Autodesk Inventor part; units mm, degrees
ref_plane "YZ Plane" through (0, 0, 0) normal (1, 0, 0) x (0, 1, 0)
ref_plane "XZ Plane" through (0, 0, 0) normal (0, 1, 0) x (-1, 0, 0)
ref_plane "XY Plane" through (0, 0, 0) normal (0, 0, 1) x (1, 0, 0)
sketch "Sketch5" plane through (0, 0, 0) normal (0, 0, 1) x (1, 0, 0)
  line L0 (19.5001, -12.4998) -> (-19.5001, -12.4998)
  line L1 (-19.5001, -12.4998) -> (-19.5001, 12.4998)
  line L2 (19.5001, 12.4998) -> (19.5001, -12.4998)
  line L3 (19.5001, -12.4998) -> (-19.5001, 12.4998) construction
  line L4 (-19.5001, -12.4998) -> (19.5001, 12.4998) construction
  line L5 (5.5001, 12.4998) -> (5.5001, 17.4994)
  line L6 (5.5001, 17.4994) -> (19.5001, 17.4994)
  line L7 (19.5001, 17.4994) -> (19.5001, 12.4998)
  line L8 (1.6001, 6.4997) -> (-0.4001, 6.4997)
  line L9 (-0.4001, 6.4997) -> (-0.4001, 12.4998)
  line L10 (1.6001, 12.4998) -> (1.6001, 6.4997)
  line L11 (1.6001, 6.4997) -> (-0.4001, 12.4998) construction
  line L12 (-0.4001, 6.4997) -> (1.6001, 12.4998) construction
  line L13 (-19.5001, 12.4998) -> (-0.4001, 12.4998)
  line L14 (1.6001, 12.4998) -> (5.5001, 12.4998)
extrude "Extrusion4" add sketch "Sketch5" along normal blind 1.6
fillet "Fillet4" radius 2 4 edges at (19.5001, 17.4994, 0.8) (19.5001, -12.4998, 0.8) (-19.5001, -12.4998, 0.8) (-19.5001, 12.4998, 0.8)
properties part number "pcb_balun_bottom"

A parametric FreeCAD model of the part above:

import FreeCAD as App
import Part
import Sketcher

V = App.Vector
Q = App.Units.Quantity


def edges_at(feature, points):
    """Names of the edges that pass closest to the given points."""
    edges = feature.Shape.Edges
    near = lambda p: min(range(len(edges)), key=lambda i: edges[i].distToShape(Part.Vertex(*p))[0])
    return sorted({f"Edge{near(p) + 1}" for p in points})

doc = App.newDocument("Part")
body = doc.addObject("PartDesign::Body", "Body")

# Sketch on XY plane
sketch1 = body.newObject("Sketcher::SketchObject", "Sketch")
sketch1.AttachmentSupport = (doc.getObject("XY_Plane"), [""])
sketch1.MapMode = "FlatFace"
sketch1.addGeometry([
    Part.LineSegment(V(-19.5001, -12.4998, 0), V(19.5001, -12.4998, 0)),  # 0
    Part.LineSegment(V(19.5001, -12.4998, 0), V(19.5001, 17.4994, 0)),  # 1
    Part.LineSegment(V(19.5001, 17.4994, 0), V(5.5001, 17.4994, 0)),  # 2
    Part.LineSegment(V(5.5001, 17.4994, 0), V(5.5001, 12.4998, 0)),  # 3
    Part.LineSegment(V(5.5001, 12.4998, 0), V(1.6001, 12.4998, 0)),  # 4
    Part.LineSegment(V(1.6001, 12.4998, 0), V(1.6001, 6.4997, 0)),  # 5
    Part.LineSegment(V(1.6001, 6.4997, 0), V(-0.4001, 6.4997, 0)),  # 6
    Part.LineSegment(V(-0.4001, 6.4997, 0), V(-0.4001, 12.4998, 0)),  # 7
    Part.LineSegment(V(-0.4001, 12.4998, 0), V(-19.5001, 12.4998, 0)),  # 8
    Part.LineSegment(V(-19.5001, 12.4998, 0), V(-19.5001, -12.4998, 0)),  # 9
], False)
sketch1.addConstraint([
    Sketcher.Constraint("Coincident", 0, 2, 1, 1),
    Sketcher.Constraint("Coincident", 1, 2, 2, 1),
    Sketcher.Constraint("Coincident", 2, 2, 3, 1),
    Sketcher.Constraint("Coincident", 3, 2, 4, 1),
    Sketcher.Constraint("Coincident", 4, 2, 5, 1),
    Sketcher.Constraint("Coincident", 5, 2, 6, 1),
    Sketcher.Constraint("Coincident", 6, 2, 7, 1),
    Sketcher.Constraint("Coincident", 7, 2, 8, 1),
    Sketcher.Constraint("Coincident", 8, 2, 9, 1),
    Sketcher.Constraint("Coincident", 9, 2, 0, 1),
    Sketcher.Constraint("Horizontal", 0),
    Sketcher.Constraint("Vertical", 1),
    Sketcher.Constraint("Horizontal", 2),
    Sketcher.Constraint("Vertical", 3),
    Sketcher.Constraint("Horizontal", 4),
    Sketcher.Constraint("Vertical", 5),
    Sketcher.Constraint("Horizontal", 6),
    Sketcher.Constraint("Vertical", 7),
    Sketcher.Constraint("Horizontal", 8),
    Sketcher.Constraint("Vertical", 9),
    Sketcher.Constraint("Symmetric", 0, 2, 8, 2, -1, 1),
    Sketcher.Constraint("Horizontal", 4, 2, 7, 2),
    Sketcher.Constraint("DistanceX", 2, 2, 2, 1, Q("14 mm")),
    Sketcher.Constraint("DistanceY", 5, 2, 5, 1, Q("6 mm")),
    Sketcher.Constraint("DistanceX", 4, 2, 4, 1, Q("3.9 mm")),
    Sketcher.Constraint("DistanceX", 8, 2, 8, 1, Q("19.1 mm")),
    Sketcher.Constraint("DistanceX", -1, 1, 0, 2, Q("19.5 mm")),
    Sketcher.Constraint("DistanceY", 1, 1, 1, 2, Q("29.9992 mm")),
    Sketcher.Constraint("DistanceY", 3, 2, 3, 1, Q("4.9996 mm")),
])
pad1 = body.newObject("PartDesign::Pad", "Pad")
pad1.Profile = sketch1
pad1.Length = 1.6
doc.recompute()

fillet = body.newObject("PartDesign::Fillet", "Fillet")
fillet.Base = (pad1, edges_at(pad1, [
    (19.5, 17.499, 0.8),
    (19.5, -12.5, 0.8),
    (-19.5, -12.5, 0.8),
    (-19.5, 12.5, 0.8),
]))
fillet.Radius = 2

doc.recompute()
